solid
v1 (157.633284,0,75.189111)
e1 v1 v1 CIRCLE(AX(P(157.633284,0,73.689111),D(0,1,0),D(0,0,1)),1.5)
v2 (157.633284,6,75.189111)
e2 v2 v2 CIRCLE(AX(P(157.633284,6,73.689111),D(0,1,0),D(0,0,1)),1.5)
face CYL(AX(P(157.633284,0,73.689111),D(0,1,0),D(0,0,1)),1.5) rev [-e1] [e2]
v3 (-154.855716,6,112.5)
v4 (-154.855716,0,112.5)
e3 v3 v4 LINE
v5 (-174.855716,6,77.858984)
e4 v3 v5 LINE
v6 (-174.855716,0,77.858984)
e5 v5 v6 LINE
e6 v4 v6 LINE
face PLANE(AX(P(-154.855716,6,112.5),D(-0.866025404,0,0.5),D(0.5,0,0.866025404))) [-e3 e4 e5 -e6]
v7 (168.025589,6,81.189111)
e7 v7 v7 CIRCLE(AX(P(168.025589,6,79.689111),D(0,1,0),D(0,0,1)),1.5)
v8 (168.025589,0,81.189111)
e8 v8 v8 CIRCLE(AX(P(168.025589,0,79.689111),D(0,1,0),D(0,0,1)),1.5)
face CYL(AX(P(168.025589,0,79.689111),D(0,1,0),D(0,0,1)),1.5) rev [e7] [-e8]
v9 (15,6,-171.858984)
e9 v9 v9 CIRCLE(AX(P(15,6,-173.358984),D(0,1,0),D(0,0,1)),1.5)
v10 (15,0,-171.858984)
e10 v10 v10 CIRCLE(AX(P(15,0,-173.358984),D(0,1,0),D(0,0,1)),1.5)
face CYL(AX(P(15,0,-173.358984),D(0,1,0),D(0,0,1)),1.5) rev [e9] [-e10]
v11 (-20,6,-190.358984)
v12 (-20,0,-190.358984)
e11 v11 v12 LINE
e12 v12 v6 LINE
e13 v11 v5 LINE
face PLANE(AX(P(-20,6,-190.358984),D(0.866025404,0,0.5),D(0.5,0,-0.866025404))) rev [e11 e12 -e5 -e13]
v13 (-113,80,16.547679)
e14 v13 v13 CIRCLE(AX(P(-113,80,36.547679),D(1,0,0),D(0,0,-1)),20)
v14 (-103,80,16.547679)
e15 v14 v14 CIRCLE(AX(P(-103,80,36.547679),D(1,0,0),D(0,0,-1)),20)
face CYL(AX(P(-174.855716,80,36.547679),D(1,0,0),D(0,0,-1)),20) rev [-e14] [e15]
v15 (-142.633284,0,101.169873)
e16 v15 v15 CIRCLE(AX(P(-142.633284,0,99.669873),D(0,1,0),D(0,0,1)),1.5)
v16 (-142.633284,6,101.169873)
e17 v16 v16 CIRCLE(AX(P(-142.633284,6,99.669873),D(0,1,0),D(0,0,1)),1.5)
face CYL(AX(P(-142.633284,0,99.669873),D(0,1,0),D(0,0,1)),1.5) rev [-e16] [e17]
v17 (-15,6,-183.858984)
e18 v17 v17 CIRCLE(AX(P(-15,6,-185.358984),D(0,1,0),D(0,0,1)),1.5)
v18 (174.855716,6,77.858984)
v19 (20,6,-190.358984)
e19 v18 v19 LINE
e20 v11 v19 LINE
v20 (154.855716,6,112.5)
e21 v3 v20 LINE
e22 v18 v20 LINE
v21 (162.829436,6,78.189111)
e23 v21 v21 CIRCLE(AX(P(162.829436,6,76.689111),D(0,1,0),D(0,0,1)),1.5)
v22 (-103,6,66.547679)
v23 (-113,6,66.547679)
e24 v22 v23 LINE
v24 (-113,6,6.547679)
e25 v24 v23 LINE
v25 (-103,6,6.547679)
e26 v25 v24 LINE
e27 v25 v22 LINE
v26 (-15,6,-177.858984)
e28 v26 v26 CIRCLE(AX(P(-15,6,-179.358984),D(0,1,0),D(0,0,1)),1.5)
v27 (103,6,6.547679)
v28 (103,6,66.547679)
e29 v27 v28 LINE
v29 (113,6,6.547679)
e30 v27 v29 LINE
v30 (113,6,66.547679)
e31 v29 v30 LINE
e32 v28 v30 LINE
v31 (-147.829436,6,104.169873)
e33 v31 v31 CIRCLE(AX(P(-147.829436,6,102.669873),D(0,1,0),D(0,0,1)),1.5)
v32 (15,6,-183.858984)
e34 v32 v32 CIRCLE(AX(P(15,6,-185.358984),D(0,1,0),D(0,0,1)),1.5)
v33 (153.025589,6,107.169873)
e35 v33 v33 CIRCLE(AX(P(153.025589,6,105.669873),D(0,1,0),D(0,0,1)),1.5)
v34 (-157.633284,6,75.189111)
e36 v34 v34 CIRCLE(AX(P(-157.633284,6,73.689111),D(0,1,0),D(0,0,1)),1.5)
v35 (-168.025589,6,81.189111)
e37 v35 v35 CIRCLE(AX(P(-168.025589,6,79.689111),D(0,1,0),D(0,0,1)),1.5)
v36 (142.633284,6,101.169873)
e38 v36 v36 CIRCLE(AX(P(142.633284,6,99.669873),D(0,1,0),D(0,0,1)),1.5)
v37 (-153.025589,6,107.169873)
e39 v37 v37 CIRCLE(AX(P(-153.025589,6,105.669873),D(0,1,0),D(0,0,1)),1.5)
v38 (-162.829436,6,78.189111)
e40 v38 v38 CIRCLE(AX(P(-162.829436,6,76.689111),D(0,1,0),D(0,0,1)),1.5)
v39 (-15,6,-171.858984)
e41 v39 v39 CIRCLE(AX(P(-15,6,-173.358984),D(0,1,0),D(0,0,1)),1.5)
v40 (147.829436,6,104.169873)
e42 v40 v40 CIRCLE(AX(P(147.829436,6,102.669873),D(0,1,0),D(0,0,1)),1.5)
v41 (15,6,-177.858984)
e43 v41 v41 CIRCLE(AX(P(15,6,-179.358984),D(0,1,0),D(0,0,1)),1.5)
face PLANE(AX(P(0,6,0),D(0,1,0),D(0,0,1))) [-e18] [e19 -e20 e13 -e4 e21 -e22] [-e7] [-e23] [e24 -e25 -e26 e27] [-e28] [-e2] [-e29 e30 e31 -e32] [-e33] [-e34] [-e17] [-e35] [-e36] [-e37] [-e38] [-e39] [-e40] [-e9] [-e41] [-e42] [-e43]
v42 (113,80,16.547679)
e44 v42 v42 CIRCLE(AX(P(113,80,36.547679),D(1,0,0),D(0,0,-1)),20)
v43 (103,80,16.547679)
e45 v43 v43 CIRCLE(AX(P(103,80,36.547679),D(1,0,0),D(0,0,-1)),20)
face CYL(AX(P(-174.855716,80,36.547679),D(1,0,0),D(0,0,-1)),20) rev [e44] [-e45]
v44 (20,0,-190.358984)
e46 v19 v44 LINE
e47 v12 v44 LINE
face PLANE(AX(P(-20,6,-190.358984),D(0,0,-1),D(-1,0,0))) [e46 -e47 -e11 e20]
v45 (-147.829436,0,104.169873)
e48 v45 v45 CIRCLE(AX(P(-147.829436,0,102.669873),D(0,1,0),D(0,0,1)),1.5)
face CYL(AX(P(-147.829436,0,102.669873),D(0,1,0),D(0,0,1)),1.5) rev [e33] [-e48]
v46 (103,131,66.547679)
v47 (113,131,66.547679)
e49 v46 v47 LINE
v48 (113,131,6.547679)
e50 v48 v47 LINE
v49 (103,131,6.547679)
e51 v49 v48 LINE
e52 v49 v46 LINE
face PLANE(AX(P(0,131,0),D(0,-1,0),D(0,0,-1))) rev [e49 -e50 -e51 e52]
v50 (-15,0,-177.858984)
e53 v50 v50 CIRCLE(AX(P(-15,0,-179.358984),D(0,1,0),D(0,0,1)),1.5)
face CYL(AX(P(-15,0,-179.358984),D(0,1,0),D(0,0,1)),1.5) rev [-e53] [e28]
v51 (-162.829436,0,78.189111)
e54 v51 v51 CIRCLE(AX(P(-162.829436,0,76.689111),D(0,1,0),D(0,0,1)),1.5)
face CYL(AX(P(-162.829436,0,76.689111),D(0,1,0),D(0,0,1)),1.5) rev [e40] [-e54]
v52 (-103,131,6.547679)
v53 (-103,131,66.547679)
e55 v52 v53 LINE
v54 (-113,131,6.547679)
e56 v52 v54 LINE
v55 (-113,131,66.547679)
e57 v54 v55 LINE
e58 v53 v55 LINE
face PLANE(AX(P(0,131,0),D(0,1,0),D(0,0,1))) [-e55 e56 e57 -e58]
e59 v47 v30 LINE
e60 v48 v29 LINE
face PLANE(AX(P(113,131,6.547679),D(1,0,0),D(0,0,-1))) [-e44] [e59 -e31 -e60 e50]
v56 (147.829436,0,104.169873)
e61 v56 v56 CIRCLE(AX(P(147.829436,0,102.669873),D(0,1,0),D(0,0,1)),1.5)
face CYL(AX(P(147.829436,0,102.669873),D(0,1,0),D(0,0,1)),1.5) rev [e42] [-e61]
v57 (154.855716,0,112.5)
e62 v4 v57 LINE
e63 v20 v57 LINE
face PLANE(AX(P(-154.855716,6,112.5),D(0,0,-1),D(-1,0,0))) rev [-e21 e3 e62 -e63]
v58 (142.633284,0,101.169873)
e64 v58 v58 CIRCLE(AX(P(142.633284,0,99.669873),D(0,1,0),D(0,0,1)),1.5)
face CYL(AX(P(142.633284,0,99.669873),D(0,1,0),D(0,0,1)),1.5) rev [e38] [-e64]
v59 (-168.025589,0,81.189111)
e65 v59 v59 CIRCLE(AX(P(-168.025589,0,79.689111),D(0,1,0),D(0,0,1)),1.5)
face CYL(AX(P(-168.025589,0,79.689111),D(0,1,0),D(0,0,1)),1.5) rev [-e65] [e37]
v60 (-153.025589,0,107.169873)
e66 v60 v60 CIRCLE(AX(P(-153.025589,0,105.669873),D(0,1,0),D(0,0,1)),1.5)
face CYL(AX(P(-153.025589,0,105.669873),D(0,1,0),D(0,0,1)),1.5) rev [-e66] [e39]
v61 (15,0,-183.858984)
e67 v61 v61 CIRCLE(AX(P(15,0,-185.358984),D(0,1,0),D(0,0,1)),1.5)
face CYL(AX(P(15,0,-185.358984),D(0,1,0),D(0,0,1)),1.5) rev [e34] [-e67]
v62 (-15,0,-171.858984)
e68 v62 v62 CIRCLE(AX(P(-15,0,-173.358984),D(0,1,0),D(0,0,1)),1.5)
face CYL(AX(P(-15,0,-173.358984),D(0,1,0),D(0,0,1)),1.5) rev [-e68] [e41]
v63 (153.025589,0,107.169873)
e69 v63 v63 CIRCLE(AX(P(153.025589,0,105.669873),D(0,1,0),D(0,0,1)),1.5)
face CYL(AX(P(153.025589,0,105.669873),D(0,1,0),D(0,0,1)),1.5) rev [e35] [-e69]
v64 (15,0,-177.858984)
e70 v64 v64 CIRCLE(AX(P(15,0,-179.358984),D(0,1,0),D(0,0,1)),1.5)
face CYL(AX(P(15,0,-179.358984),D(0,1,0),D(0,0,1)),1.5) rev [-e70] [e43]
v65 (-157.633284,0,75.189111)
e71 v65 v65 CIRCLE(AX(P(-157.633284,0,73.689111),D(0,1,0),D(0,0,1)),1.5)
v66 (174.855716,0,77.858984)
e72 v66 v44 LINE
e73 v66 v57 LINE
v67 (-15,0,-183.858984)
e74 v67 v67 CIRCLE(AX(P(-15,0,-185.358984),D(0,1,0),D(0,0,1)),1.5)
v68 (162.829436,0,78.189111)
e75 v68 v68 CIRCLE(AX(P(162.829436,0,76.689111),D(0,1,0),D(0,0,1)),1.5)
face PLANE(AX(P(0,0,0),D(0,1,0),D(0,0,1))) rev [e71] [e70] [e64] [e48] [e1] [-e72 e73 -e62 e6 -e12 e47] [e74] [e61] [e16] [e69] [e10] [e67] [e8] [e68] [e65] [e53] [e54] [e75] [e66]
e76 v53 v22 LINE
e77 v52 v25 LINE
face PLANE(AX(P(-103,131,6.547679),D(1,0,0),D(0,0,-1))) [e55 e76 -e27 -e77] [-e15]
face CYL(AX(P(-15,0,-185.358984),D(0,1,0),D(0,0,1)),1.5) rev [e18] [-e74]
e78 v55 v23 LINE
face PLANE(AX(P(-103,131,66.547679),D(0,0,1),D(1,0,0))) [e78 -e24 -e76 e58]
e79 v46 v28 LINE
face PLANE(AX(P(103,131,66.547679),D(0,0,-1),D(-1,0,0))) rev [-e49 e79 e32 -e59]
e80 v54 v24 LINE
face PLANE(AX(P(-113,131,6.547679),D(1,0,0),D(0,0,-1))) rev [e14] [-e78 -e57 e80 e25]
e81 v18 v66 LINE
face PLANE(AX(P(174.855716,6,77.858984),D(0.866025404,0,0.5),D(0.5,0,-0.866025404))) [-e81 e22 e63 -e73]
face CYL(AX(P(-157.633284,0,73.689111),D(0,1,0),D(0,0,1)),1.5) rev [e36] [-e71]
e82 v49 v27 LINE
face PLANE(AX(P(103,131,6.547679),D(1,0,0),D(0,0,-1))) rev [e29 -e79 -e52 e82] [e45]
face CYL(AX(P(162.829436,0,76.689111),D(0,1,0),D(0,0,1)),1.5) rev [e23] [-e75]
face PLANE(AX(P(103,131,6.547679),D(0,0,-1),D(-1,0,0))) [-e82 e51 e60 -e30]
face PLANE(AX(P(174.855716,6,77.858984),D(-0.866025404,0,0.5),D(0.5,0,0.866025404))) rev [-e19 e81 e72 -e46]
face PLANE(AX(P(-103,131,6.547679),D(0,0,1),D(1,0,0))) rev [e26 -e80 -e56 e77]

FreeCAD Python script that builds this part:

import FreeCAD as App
import Part
import Sketcher
from FreeCAD import Vector
Q = App.Units.Quantity

doc = App.newDocument("Part")
body = doc.addObject("PartDesign::Body", "Body")

# Sketch on XZ plane
sketch1 = doc.addObject("Sketcher::SketchObject", "Sketch")
body.addObject(sketch1)
sketch1.AttachmentSupport = (doc.XZ_Plane, [""])
sketch1.MapMode = "FlatFace"
sketch1.addGeometry([
    Part.LineSegment(Vector(20, -190, 0), Vector(-20, -190, 0)),  # 0
    Part.LineSegment(Vector(-20, -190, 0), Vector(-175, 78, 0)),  # 1
    Part.LineSegment(Vector(-175, 78, 0), Vector(-155, 113, 0)),  # 2
    Part.LineSegment(Vector(-155, 113, 0), Vector(155, 113, 0)),  # 3
    Part.LineSegment(Vector(155, 113, 0), Vector(175, 78, 0)),  # 4
    Part.LineSegment(Vector(175, 78, 0), Vector(20, -190, 0)),  # 5
], False)
sketch1.addConstraint([
    Sketcher.Constraint("Coincident", 0, 2, 1, 1),
    Sketcher.Constraint("Coincident", 1, 2, 2, 1),
    Sketcher.Constraint("Coincident", 2, 2, 3, 1),
    Sketcher.Constraint("Coincident", 3, 2, 4, 1),
    Sketcher.Constraint("Coincident", 4, 2, 5, 1),
    Sketcher.Constraint("Coincident", 5, 2, 0, 1),
    Sketcher.Constraint("Horizontal", 0),
    Sketcher.Constraint("Horizontal", 3),
    Sketcher.Constraint("Symmetric", 1, 2, 4, 2, -2),
    Sketcher.Constraint("Parallel", 1, 4),
    Sketcher.Constraint("Parallel", 2, 5),
    Sketcher.Constraint("Equal", 2, 4),
    Sketcher.Constraint("DistanceX", 0, 2, 0, 1, Q("40 mm")),
    Sketcher.Constraint("Angle", 1, Q("120 deg")),
    Sketcher.Constraint("Distance", 2, Q("40 mm")),
    Sketcher.Constraint("DistanceY", -1, 1, 2, 2, Q("112.5 mm")),
    Sketcher.Constraint("DistanceX", 3, 1, 3, 2, Q("309.711432 mm")),
])
pad1 = doc.addObject("PartDesign::Pad", "Pad")
body.addObject(pad1)
pad1.Profile = sketch1
pad1.Length = 6
pad1.Reversed = True

# Sketch on XZ plane
sketch2 = doc.addObject("Sketcher::SketchObject", "Sketch001")
body.addObject(sketch2)
sketch2.AttachmentSupport = (doc.XZ_Plane, [""])
sketch2.MapMode = "FlatFace"
sketch2.AttachmentOffset = App.Placement(Vector(0, 0, -6), App.Rotation())
sketch2.addGeometry([
    Part.Circle(Vector(15, -185.4, 0), Vector(0, 0, 1), 1.5),  # 0
    Part.Circle(Vector(-15, -185.4, 0), Vector(0, 0, 1), 1.5),  # 1
    Part.Circle(Vector(-15, -179.4, 0), Vector(0, 0, 1), 1.5),  # 2
    Part.Circle(Vector(-15, -173.4, 0), Vector(0, 0, 1), 1.5),  # 3
    Part.Circle(Vector(15, -179.4, 0), Vector(0, 0, 1), 1.5),  # 4
    Part.Circle(Vector(15, -173.4, 0), Vector(0, 0, 1), 1.5),  # 5
    Part.Circle(Vector(153, 105.7, 0), Vector(0, 0, 1), 1.5),  # 6
    Part.Circle(Vector(168, 79.7, 0), Vector(0, 0, 1), 1.5),  # 7
    Part.Circle(Vector(162.8, 76.7, 0), Vector(0, 0, 1), 1.5),  # 8
    Part.Circle(Vector(157.6, 73.7, 0), Vector(0, 0, 1), 1.5),  # 9
    Part.Circle(Vector(147.8, 102.7, 0), Vector(0, 0, 1), 1.5),  # 10
    Part.Circle(Vector(142.6, 99.7, 0), Vector(0, 0, 1), 1.5),  # 11
    Part.Circle(Vector(-168, 79.7, 0), Vector(0, 0, 1), 1.5),  # 12
    Part.Circle(Vector(-153, 105.7, 0), Vector(0, 0, 1), 1.5),  # 13
    Part.Circle(Vector(-147.8, 102.7, 0), Vector(0, 0, 1), 1.5),  # 14
    Part.Circle(Vector(-142.6, 99.7, 0), Vector(0, 0, 1), 1.5),  # 15
    Part.Circle(Vector(-162.8, 76.7, 0), Vector(0, 0, 1), 1.5),  # 16
    Part.Circle(Vector(-157.6, 73.7, 0), Vector(0, 0, 1), 1.5),  # 17
], False)
sketch2.addConstraint([
    Sketcher.Constraint("Equal", 0, 1),
    Sketcher.Constraint("Equal", 1, 2),
    Sketcher.Constraint("Equal", 2, 3),
    Sketcher.Constraint("Equal", 3, 4),
    Sketcher.Constraint("Equal", 4, 5),
    Sketcher.Constraint("Equal", 5, 6),
    Sketcher.Constraint("Equal", 6, 7),
    Sketcher.Constraint("Equal", 7, 8),
    Sketcher.Constraint("Equal", 8, 9),
    Sketcher.Constraint("Equal", 9, 10),
    Sketcher.Constraint("Equal", 10, 11),
    Sketcher.Constraint("Equal", 11, 12),
    Sketcher.Constraint("Equal", 12, 13),
    Sketcher.Constraint("Equal", 13, 14),
    Sketcher.Constraint("Equal", 14, 15),
    Sketcher.Constraint("Equal", 15, 16),
    Sketcher.Constraint("Equal", 16, 17),
    Sketcher.Constraint("Symmetric", 0, 3, 1, 3, -2),
    Sketcher.Constraint("Symmetric", 2, 3, 4, 3, -2),
    Sketcher.Constraint("Symmetric", 3, 3, 5, 3, -2),
    Sketcher.Constraint("Symmetric", 7, 3, 12, 3, -2),
    Sketcher.Constraint("Symmetric", 6, 3, 13, 3, -2),
    Sketcher.Constraint("Symmetric", 10, 3, 14, 3, -2),
    Sketcher.Constraint("Symmetric", 11, 3, 15, 3, -2),
    Sketcher.Constraint("Symmetric", 8, 3, 16, 3, -2),
    Sketcher.Constraint("Symmetric", 9, 3, 17, 3, -2),
    Sketcher.Constraint("Vertical", 1, 3, 2, 3),
    Sketcher.Constraint("Vertical", 2, 3, 3, 3),
    Sketcher.Constraint("Diameter", 0, Q("3 mm")),
    Sketcher.Constraint("DistanceX", -1, 1, 0, 3, Q("15 mm")),
    Sketcher.Constraint("DistanceY", 1, 3, 2, 3, Q("6 mm")),
    Sketcher.Constraint("DistanceY", 2, 3, 3, 3, Q("6 mm")),
    Sketcher.Constraint("DistanceX", 6, 3, 7, 3, Q("15 mm")),
    Sketcher.Constraint("DistanceY", 8, 3, 7, 3, Q("3 mm")),
    Sketcher.Constraint("DistanceY", 9, 3, 8, 3, Q("3 mm")),
    Sketcher.Constraint("DistanceY", 10, 3, 6, 3, Q("3 mm")),
    Sketcher.Constraint("DistanceX", 10, 3, 8, 3, Q("15 mm")),
    Sketcher.Constraint("DistanceY", 11, 3, 10, 3, Q("3 mm")),
    Sketcher.Constraint("DistanceX", 11, 3, 9, 3, Q("15 mm")),
    Sketcher.Constraint("DistanceX", -1, 1, 6, 3, Q("153.025589 mm")),
    Sketcher.Constraint("DistanceY", -1, 1, 7, 3, Q("79.689111 mm")),
    Sketcher.Constraint("DistanceX", 14, 3, 11, 3, Q("290.46272 mm")),
    Sketcher.Constraint("DistanceY", 0, 3, -1, 1, Q("185.358984 mm")),
    Sketcher.Constraint("DistanceY", -1, 1, 6, 3, Q("105.669873 mm")),
    Sketcher.Constraint("DistanceX", -1, 1, 8, 3, Q("162.829436 mm")),
])
pocket1 = doc.addObject("PartDesign::Pocket", "Pocket")
body.addObject(pocket1)
pocket1.Profile = sketch2
pocket1.Type = "ThroughAll"
pocket1.Reversed = True

# Sketch on XZ plane
sketch3 = doc.addObject("Sketcher::SketchObject", "Sketch002")
body.addObject(sketch3)
sketch3.AttachmentSupport = (doc.XZ_Plane, [""])
sketch3.MapMode = "FlatFace"
sketch3.AttachmentOffset = App.Placement(Vector(0, 0, -6), App.Rotation())
sketch3.addGeometry([
    Part.LineSegment(Vector(-113, 7, 0), Vector(-113, 67, 0)),  # 0
    Part.LineSegment(Vector(-113, 67, 0), Vector(-103, 67, 0)),  # 1
    Part.LineSegment(Vector(-103, 67, 0), Vector(-103, 7, 0)),  # 2
    Part.LineSegment(Vector(-103, 7, 0), Vector(-113, 7, 0)),  # 3
    Part.LineSegment(Vector(103, 7, 0), Vector(103, 67, 0)),  # 4
    Part.LineSegment(Vector(103, 67, 0), Vector(113, 67, 0)),  # 5
    Part.LineSegment(Vector(113, 67, 0), Vector(113, 7, 0)),  # 6
    Part.LineSegment(Vector(113, 7, 0), Vector(103, 7, 0)),  # 7
], False)
sketch3.addConstraint([
    Sketcher.Constraint("Coincident", 0, 2, 1, 1),
    Sketcher.Constraint("Coincident", 1, 2, 2, 1),
    Sketcher.Constraint("Coincident", 2, 2, 3, 1),
    Sketcher.Constraint("Coincident", 3, 2, 0, 1),
    Sketcher.Constraint("Coincident", 4, 2, 5, 1),
    Sketcher.Constraint("Coincident", 5, 2, 6, 1),
    Sketcher.Constraint("Coincident", 6, 2, 7, 1),
    Sketcher.Constraint("Coincident", 7, 2, 4, 1),
    Sketcher.Constraint("Vertical", 0),
    Sketcher.Constraint("Horizontal", 1),
    Sketcher.Constraint("Vertical", 2),
    Sketcher.Constraint("Horizontal", 3),
    Sketcher.Constraint("Vertical", 4),
    Sketcher.Constraint("Horizontal", 5),
    Sketcher.Constraint("Vertical", 6),
    Sketcher.Constraint("Horizontal", 7),
    Sketcher.Constraint("Symmetric", 1, 2, 4, 2, -2),
    Sketcher.Constraint("Symmetric", 3, 2, 6, 2, -2),
    Sketcher.Constraint("DistanceX", 1, 1, 1, 2, Q("10 mm")),
    Sketcher.Constraint("DistanceY", 0, 1, 0, 2, Q("60 mm")),
    Sketcher.Constraint("DistanceX", 0, 2, -1, 1, Q("113 mm")),
    Sketcher.Constraint("DistanceY", -1, 1, 0, 2, Q("66.547679 mm")),
])
pad2 = doc.addObject("PartDesign::Pad", "Pad001")
body.addObject(pad2)
pad2.Profile = sketch3
pad2.Length = 125
pad2.Reversed = True

# Sketch on YZ plane
sketch4 = doc.addObject("Sketcher::SketchObject", "Sketch003")
body.addObject(sketch4)
sketch4.AttachmentSupport = (doc.YZ_Plane, [""])
sketch4.MapMode = "FlatFace"
sketch4.AttachmentOffset = App.Placement(Vector(0, 0, 113), App.Rotation())
sketch4.addGeometry(Part.Circle(Vector(80, 37, 0), Vector(0, 0, 1), 20), False)
sketch4.addConstraint([
    Sketcher.Constraint("Diameter", 0, Q("40 mm")),
    Sketcher.Constraint("DistanceX", -1, 1, 0, 3, Q("80 mm")),
    Sketcher.Constraint("DistanceY", -1, 1, 0, 3, Q("36.547679 mm")),
])
pocket2 = doc.addObject("PartDesign::Pocket", "Pocket001")
body.addObject(pocket2)
pocket2.Profile = sketch4
pocket2.Type = "ThroughAll"

doc.recompute()
